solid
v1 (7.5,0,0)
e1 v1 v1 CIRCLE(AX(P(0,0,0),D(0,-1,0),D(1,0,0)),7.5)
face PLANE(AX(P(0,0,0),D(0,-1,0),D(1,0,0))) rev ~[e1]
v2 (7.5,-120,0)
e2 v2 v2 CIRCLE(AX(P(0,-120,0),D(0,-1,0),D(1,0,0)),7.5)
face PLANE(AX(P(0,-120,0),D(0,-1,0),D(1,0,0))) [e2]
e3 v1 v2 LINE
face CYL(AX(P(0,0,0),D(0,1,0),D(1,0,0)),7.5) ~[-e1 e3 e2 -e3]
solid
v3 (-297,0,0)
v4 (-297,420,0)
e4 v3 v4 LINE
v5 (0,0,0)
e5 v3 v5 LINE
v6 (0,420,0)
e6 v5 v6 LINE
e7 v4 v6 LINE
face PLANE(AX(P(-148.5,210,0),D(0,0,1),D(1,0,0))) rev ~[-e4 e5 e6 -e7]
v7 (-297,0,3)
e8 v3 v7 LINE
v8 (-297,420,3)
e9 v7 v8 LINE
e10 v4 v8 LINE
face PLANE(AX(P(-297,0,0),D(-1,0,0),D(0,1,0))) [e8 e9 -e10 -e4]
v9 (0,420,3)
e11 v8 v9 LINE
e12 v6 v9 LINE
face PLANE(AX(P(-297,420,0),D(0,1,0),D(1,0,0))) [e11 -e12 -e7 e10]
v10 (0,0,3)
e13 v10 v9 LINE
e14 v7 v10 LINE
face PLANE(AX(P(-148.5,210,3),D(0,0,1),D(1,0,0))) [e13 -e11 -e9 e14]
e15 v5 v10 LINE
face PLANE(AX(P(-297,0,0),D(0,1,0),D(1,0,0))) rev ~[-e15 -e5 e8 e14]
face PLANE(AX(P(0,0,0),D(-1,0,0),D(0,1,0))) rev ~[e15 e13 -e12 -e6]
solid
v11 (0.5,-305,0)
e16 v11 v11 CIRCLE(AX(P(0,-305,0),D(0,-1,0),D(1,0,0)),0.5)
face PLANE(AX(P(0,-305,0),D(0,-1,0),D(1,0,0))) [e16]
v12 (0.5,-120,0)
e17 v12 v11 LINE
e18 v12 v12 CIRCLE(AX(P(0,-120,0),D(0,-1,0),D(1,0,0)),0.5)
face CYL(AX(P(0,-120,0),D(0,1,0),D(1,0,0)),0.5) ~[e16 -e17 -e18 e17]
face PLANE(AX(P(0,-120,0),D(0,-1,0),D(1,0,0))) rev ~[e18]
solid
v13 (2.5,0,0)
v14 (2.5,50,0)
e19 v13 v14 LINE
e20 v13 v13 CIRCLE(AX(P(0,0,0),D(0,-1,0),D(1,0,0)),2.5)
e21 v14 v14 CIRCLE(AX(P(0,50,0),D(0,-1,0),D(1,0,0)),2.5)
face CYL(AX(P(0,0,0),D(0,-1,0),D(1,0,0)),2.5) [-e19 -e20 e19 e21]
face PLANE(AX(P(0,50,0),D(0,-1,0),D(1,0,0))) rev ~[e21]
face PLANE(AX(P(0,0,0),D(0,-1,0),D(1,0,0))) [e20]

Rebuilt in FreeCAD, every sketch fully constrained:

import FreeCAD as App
import Part
import Sketcher

V = App.Vector
Q = App.Units.Quantity


def add_polygon(sketch, points):
    """Adds a closed chain of lines whose ends are joined by coincident constraints."""
    first, n = sketch.GeometryCount, len(points)
    for a, b in zip(points, points[1:] + points[:1]):
        sketch.addGeometry(Part.LineSegment(App.Vector(*a, 0), App.Vector(*b, 0)), False)
    for i in range(n):
        sketch.addConstraint(Sketcher.Constraint("Coincident", first + i, 2, first + (i + 1) % n, 1))

doc = App.newDocument("Part")
body = doc.addObject("PartDesign::Body", "Body")

sketch1 = body.newObject("Sketcher::SketchObject", "Sketch")
sketch1.AttachmentSupport = (doc.getObject("XZ_Plane"), [""])
sketch1.MapMode = "FlatFace"
sketch1.addGeometry(Part.Circle(V(0, 0, 0), V(0, 0, 1), 7.5), False)
sketch1.addConstraint(Sketcher.Constraint("Coincident", 0, 3, -1, 1))
sketch1.addConstraint(Sketcher.Constraint("Diameter", 0, Q("15 mm")))
pad1 = body.newObject("PartDesign::Pad", "Pad")
pad1.Profile = sketch1
pad1.Length = 120
body2 = doc.addObject("PartDesign::Body", "Body001")

sketch2 = body2.newObject("Sketcher::SketchObject", "Sketch001")
sketch2.AttachmentSupport = (doc.getObject("XZ_Plane001"), [""])
sketch2.MapMode = "FlatFace"
sketch2.AttachmentOffset = App.Placement(V(0, 0, 120), App.Rotation())
sketch2.addGeometry(Part.Circle(V(0, 0, 0), V(0, 0, 1), 0.5), False)
sketch2.addConstraint(Sketcher.Constraint("Coincident", 0, 3, -1, 1))
sketch2.addConstraint(Sketcher.Constraint("Diameter", 0, Q("1 mm")))
pad2 = body2.newObject("PartDesign::Pad", "Pad001")
pad2.Profile = sketch2
pad2.Length = 185
body3 = doc.addObject("PartDesign::Body", "Body002")

sketch3 = body3.newObject("Sketcher::SketchObject", "Sketch002")
sketch3.AttachmentSupport = (doc.getObject("XZ_Plane002"), [""])
sketch3.MapMode = "FlatFace"
sketch3.addGeometry(Part.Circle(V(0, 0, 0), V(0, 0, 1), 2.5), False)
sketch3.addConstraint(Sketcher.Constraint("Coincident", 0, 3, -1, 1))
sketch3.addConstraint(Sketcher.Constraint("Diameter", 0, Q("5 mm")))
pad3 = body3.newObject("PartDesign::Pad", "Pad002")
pad3.Profile = sketch3
pad3.Length = 50
pad3.Reversed = True
body4 = doc.addObject("PartDesign::Body", "Body003")

sketch4 = body4.newObject("Sketcher::SketchObject", "Sketch003")
sketch4.AttachmentSupport = (doc.getObject("XY_Plane003"), [""])
sketch4.MapMode = "FlatFace"
add_polygon(sketch4, [(-297, 420), (-297, 0), (0, 0), (0, 420)])
sketch4.addConstraint(Sketcher.Constraint("Vertical", 0))
sketch4.addConstraint(Sketcher.Constraint("Horizontal", 1))
sketch4.addConstraint(Sketcher.Constraint("Vertical", 2))
sketch4.addConstraint(Sketcher.Constraint("Horizontal", 3))
sketch4.addConstraint(Sketcher.Constraint("Coincident", 1, 2, -1, 1))
sketch4.addConstraint(Sketcher.Constraint("DistanceX", 1, 1, 1, 2, Q("297 mm")))
sketch4.addConstraint(Sketcher.Constraint("DistanceY", 0, 2, 0, 1, Q("420 mm")))
pad4 = body4.newObject("PartDesign::Pad", "Pad003")
pad4.Profile = sketch4
pad4.Length = 3

doc.recompute()
